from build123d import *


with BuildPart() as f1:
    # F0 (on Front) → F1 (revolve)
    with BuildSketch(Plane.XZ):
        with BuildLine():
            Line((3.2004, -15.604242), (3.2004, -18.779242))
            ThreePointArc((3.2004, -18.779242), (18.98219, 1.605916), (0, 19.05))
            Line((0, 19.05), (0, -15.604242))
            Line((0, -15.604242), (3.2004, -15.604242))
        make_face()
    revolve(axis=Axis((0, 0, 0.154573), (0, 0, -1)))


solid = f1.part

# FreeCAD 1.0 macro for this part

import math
import FreeCAD as App
import Part
import Sketcher
Q = App.Units.Quantity

doc = App.newDocument("Part")
body = doc.addObject("PartDesign::Body", "Body")

# Sketch on XZ plane
sketch1 = body.newObject("Sketcher::SketchObject", "Sketch")
sketch1.AttachmentSupport = (doc.getObject("XZ_Plane"), [""])
sketch1.MapMode = "FlatFace"
sketch1.addGeometry([
    Part.LineSegment(App.Vector(3.2, -15.6, 0), App.Vector(3.2, -18.8, 0)),
    Part.ArcOfCircle(Part.Circle(App.Vector(0, 0, 0), App.Vector(0, 0, 1), 19), math.radians(-80), math.radians(90)),
    Part.LineSegment(App.Vector(0, 19.1, 0), App.Vector(0, -15.6, 0)),
    Part.LineSegment(App.Vector(0, -15.6, 0), App.Vector(3.2, -15.6, 0)),
], False)
sketch1.addConstraint([
    Sketcher.Constraint("Coincident", 0, 2, 1, 1),
    Sketcher.Constraint("Coincident", 1, 2, 2, 1),
    Sketcher.Constraint("Coincident", 2, 2, 3, 1),
    Sketcher.Constraint("Coincident", 3, 2, 0, 1),
    Sketcher.Constraint("Vertical", 0),
    Sketcher.Constraint("Vertical", 2),
    Sketcher.Constraint("Horizontal", 3),
    Sketcher.Constraint("Coincident", 1, 3, -1, 1),
    Sketcher.Constraint("PointOnObject", 1, 2, -2),
    Sketcher.Constraint("Radius", 1, Q("0.75 in")),
    Sketcher.Constraint("DistanceX", 3, 1, 3, 2, Q("0.126 in")),
    Sketcher.Constraint("DistanceY", 0, 2, 0, 1, Q("0.125 in")),
])
revolution = body.newObject("PartDesign::Revolution", "Revolution")
revolution.Profile = sketch1
revolution.ReferenceAxis = (sketch1, ["V_Axis"])
revolution.Angle = 360

doc.recompute()
